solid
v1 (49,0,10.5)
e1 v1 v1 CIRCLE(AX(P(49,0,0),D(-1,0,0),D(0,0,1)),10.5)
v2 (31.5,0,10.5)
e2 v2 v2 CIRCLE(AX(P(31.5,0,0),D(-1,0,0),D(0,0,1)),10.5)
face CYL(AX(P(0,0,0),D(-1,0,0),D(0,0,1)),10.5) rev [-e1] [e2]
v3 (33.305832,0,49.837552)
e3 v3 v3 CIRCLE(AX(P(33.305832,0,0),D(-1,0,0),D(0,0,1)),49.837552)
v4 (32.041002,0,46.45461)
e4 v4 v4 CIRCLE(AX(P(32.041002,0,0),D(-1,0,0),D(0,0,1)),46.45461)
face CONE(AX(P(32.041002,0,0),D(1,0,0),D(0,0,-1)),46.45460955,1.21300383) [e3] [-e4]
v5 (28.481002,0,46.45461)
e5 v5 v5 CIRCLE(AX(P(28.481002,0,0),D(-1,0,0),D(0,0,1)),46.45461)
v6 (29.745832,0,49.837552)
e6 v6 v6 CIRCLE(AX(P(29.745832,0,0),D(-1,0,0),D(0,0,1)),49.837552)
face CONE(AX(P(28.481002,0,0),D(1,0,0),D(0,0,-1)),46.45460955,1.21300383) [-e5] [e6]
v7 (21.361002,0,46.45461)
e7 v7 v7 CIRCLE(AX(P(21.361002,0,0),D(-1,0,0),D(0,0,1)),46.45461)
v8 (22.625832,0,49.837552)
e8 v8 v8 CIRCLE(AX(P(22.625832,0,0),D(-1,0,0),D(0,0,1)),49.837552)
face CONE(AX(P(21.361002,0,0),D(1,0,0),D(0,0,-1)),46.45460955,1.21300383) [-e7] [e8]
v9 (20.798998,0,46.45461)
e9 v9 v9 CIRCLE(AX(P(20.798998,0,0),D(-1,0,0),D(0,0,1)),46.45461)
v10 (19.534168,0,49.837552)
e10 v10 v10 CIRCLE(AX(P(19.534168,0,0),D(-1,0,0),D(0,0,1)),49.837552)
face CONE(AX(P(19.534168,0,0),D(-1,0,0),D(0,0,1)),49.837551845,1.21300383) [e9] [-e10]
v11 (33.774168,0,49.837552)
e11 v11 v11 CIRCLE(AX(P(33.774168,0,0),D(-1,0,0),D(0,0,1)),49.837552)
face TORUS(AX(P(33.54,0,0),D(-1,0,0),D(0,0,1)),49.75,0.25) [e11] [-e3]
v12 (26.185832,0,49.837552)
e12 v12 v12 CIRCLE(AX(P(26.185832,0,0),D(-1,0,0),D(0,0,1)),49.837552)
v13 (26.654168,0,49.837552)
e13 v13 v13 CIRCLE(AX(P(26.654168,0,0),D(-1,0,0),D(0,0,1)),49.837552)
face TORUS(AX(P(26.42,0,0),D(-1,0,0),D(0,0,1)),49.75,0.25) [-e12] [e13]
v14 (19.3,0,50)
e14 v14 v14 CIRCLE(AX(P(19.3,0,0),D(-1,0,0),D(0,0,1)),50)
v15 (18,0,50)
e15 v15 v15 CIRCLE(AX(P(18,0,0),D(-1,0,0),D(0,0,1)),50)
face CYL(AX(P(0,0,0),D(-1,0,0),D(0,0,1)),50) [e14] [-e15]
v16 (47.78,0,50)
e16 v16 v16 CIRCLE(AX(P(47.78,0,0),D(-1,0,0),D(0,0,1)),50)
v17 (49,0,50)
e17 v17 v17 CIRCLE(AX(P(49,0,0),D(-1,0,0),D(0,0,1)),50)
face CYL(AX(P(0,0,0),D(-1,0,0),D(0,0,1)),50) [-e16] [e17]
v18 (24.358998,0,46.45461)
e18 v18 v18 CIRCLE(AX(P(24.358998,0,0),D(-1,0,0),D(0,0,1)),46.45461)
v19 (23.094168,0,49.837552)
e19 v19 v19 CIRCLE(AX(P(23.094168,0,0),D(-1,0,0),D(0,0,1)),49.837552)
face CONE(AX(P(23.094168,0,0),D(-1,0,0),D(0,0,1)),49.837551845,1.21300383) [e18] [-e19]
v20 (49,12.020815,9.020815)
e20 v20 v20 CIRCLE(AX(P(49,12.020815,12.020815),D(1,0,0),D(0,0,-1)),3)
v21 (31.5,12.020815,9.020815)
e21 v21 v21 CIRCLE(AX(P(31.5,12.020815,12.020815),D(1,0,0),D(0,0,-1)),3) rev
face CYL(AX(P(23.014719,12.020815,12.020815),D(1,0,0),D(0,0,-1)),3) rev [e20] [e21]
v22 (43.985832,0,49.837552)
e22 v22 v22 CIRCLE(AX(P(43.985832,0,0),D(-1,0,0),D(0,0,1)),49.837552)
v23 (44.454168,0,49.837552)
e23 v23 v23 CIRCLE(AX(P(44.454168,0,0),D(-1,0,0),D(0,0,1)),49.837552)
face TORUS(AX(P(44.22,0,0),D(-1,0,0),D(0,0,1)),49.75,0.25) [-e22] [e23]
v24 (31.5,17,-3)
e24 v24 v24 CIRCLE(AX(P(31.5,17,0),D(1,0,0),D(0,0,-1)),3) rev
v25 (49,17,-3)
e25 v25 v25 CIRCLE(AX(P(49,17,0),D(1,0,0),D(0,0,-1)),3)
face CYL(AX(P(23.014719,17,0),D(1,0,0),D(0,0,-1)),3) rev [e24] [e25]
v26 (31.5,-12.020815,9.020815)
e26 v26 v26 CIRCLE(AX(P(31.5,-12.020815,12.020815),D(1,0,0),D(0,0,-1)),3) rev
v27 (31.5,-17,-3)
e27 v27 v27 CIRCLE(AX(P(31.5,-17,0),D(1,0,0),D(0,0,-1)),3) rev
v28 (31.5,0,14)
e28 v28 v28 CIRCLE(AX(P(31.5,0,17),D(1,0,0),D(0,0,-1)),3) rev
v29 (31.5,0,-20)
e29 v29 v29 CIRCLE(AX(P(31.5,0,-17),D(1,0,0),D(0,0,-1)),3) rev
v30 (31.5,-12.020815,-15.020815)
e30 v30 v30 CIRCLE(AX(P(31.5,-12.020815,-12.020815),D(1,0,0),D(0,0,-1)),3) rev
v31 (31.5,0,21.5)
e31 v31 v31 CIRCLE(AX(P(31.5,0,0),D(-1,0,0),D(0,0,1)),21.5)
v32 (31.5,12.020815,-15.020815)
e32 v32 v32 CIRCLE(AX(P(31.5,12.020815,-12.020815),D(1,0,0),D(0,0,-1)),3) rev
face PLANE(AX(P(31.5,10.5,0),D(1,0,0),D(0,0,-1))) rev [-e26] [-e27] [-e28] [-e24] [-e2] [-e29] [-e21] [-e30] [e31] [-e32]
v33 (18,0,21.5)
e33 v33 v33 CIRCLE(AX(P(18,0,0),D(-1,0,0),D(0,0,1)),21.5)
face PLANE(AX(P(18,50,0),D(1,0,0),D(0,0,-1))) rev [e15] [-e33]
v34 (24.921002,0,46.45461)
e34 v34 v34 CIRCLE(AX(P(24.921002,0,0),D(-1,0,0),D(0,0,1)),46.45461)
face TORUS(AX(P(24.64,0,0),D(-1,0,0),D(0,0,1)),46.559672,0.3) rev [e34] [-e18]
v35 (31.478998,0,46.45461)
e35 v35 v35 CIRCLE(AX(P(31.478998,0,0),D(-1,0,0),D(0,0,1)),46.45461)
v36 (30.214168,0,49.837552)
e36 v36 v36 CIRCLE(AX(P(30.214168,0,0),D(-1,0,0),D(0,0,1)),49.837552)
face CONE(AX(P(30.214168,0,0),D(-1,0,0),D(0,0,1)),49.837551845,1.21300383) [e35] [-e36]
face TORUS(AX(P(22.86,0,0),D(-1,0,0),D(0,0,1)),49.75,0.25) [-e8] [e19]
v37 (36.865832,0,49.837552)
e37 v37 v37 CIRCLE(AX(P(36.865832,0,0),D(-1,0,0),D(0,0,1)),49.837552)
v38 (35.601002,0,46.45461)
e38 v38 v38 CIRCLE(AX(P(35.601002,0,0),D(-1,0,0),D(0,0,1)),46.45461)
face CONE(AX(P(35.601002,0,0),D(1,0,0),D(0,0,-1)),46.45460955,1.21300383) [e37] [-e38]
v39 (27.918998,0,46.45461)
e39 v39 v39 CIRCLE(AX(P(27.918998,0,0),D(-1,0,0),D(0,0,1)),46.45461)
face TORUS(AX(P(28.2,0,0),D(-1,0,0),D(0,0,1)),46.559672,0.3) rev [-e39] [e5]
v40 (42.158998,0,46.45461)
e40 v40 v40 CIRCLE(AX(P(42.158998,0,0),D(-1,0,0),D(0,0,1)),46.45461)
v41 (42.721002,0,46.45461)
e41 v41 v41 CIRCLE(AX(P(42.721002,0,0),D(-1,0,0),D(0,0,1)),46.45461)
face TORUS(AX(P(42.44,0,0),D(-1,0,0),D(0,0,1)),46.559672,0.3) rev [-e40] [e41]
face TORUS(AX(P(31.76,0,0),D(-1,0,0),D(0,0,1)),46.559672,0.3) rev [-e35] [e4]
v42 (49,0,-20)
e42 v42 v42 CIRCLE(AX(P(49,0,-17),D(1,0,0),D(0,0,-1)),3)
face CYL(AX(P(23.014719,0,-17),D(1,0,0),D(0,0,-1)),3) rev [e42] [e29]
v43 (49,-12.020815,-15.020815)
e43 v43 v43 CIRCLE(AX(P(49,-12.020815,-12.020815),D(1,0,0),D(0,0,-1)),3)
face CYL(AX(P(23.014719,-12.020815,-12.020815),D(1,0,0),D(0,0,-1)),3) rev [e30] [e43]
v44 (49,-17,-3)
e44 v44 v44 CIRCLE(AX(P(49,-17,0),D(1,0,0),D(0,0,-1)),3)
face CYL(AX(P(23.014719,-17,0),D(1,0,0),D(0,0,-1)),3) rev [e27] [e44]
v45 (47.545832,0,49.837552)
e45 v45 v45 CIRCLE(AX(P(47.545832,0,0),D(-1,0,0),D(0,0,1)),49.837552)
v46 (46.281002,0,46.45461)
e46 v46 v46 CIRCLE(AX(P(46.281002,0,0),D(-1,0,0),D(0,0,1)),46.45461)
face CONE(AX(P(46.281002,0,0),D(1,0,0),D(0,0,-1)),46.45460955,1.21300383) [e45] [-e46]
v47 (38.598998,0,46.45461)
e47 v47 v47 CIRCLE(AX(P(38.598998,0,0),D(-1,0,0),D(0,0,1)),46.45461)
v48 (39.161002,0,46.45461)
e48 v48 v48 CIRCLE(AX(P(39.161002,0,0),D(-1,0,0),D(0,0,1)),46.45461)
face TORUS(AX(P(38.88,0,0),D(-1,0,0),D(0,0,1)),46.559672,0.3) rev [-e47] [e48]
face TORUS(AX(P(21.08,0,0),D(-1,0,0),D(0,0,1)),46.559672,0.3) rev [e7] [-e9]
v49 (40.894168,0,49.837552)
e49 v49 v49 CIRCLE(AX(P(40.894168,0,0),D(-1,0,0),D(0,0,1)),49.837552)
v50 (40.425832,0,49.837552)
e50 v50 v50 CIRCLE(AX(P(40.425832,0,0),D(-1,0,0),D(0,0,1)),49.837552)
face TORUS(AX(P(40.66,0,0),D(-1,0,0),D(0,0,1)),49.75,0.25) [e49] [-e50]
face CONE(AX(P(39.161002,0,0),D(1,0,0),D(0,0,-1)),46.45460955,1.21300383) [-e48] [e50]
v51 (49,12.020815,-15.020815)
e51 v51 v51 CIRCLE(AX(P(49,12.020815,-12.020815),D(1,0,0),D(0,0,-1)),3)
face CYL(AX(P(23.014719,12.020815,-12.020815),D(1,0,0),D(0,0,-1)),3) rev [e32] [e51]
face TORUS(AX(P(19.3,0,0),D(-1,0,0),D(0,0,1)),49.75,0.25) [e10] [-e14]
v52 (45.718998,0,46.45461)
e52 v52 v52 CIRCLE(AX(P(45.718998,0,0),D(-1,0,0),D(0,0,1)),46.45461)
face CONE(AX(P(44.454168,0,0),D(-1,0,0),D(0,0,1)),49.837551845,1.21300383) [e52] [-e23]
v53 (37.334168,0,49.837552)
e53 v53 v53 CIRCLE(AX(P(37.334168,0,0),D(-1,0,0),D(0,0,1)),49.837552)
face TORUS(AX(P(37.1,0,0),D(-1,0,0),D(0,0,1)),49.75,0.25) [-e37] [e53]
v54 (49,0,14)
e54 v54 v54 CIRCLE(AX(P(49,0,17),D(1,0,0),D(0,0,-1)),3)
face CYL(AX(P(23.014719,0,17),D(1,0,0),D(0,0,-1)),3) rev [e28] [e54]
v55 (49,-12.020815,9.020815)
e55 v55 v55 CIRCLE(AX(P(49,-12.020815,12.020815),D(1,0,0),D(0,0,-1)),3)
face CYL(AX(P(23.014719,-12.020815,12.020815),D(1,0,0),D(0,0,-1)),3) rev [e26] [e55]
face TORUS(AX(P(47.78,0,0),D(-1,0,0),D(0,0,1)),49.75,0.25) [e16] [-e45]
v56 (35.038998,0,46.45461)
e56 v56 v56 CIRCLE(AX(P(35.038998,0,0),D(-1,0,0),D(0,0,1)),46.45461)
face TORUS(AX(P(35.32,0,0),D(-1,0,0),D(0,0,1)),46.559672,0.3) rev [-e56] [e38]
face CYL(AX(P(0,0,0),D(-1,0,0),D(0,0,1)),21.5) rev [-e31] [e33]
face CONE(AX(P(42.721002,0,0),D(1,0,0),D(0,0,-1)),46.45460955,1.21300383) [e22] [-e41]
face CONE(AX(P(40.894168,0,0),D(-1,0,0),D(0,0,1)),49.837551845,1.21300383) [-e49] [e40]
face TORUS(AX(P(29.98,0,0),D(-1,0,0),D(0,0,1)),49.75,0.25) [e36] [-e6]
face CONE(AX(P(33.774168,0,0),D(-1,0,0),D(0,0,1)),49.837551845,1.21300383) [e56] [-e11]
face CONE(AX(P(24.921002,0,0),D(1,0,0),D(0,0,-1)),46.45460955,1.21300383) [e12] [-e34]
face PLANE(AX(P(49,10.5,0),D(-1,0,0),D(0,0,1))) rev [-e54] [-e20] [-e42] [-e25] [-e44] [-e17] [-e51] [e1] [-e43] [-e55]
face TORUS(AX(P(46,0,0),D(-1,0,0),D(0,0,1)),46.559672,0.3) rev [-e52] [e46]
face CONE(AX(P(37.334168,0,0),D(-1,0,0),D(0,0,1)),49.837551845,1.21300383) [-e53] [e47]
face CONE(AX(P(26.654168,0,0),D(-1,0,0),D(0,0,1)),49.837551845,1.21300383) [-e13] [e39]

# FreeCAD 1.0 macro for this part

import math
import FreeCAD as App
import Part
import Sketcher

V = App.Vector
Q = App.Units.Quantity

doc = App.newDocument("Part")
body = doc.addObject("PartDesign::Body", "Body")

sketch1 = body.newObject("Sketcher::SketchObject", "Sketch")
sketch1.AttachmentSupport = (doc.getObject("XY_Plane"), [""])
sketch1.MapMode = "FlatFace"
sketch1.addGeometry(Part.LineSegment(V(49, 10.5, 0), V(49, 50, 0)), False)
sketch1.addGeometry(Part.LineSegment(V(49, 50, 0), V(18, 50, 0)), False)
sketch1.addGeometry(Part.LineSegment(V(18, 50, 0), V(18, 21.5, 0)), False)
sketch1.addGeometry(Part.LineSegment(V(18, 21.5, 0), V(31.5, 21.5, 0)), False)
sketch1.addGeometry(Part.LineSegment(V(31.5, 21.5, 0), V(31.5, 10.5, 0)), False)
sketch1.addGeometry(Part.LineSegment(V(31.5, 10.5, 0), V(49, 10.5, 0)), False)
sketch1.addConstraint(Sketcher.Constraint("Coincident", 0, 2, 1, 1))
sketch1.addConstraint(Sketcher.Constraint("Coincident", 1, 2, 2, 1))
sketch1.addConstraint(Sketcher.Constraint("Coincident", 2, 2, 3, 1))
sketch1.addConstraint(Sketcher.Constraint("Coincident", 3, 2, 4, 1))
sketch1.addConstraint(Sketcher.Constraint("Coincident", 4, 2, 5, 1))
sketch1.addConstraint(Sketcher.Constraint("Coincident", 5, 2, 0, 1))
sketch1.addConstraint(Sketcher.Constraint("Vertical", 0))
sketch1.addConstraint(Sketcher.Constraint("Horizontal", 1))
sketch1.addConstraint(Sketcher.Constraint("Vertical", 2))
sketch1.addConstraint(Sketcher.Constraint("Horizontal", 3))
sketch1.addConstraint(Sketcher.Constraint("Vertical", 4))
sketch1.addConstraint(Sketcher.Constraint("Horizontal", 5))
sketch1.addConstraint(Sketcher.Constraint("DistanceX", 1, 2, 1, 1, Q("31 mm")))
sketch1.addConstraint(Sketcher.Constraint("DistanceY", 4, 2, 4, 1, Q("11 mm")))
sketch1.addConstraint(Sketcher.Constraint("DistanceX", 3, 1, 3, 2, Q("13.5 mm")))
sketch1.addConstraint(Sketcher.Constraint("DistanceY", 0, 1, 0, 2, Q("39.5 mm")))
sketch1.addConstraint(Sketcher.Constraint("DistanceX", -1, 1, 0, 2, Q("49 mm")))
sketch1.addConstraint(Sketcher.Constraint("DistanceY", -1, 1, 0, 2, Q("50 mm")))
revolution = body.newObject("PartDesign::Revolution", "Revolution")
revolution.Profile = sketch1
revolution.ReferenceAxis = (sketch1, ["H_Axis"])
revolution.Angle = 360

sketch2 = body.newObject("Sketcher::SketchObject", "Sketch001")
sketch2.AttachmentSupport = (doc.getObject("XY_Plane"), [""])
sketch2.MapMode = "FlatFace"
sketch2.addGeometry(Part.LineSegment(V(46.281002, 46.45461, 0), V(47.545832, 49.837552, 0)), False)
sketch2.addGeometry(Part.ArcOfCircle(Part.Circle(V(47.78, 49.75, 0), V(0, 0, 1), 0.25), math.radians(90), math.radians(159.5)), False)
sketch2.addGeometry(Part.LineSegment(V(47.78, 50, 0), V(44.22, 50, 0)), False)
sketch2.addGeometry(Part.ArcOfCircle(Part.Circle(V(44.22, 49.75, 0), V(0, 0, 1), 0.25), math.radians(20.5), math.radians(90)), False)
sketch2.addGeometry(Part.LineSegment(V(44.454168, 49.837552, 0), V(45.718998, 46.45461, 0)), False)
sketch2.addGeometry(Part.ArcOfCircle(Part.Circle(V(46, 46.559672, 0), V(0, 0, 1), 0.3), math.radians(-159.5), math.radians(-20.5)), False)
sketch2.addConstraint(Sketcher.Constraint("Tangent", 0, 2, 1, 2))
sketch2.addConstraint(Sketcher.Constraint("Tangent", 1, 1, 2, 1))
sketch2.addConstraint(Sketcher.Constraint("Tangent", 2, 2, 3, 2))
sketch2.addConstraint(Sketcher.Constraint("Tangent", 3, 1, 4, 1))
sketch2.addConstraint(Sketcher.Constraint("Tangent", 4, 2, 5, 1))
sketch2.addConstraint(Sketcher.Constraint("Tangent", 5, 2, 0, 1))
sketch2.addConstraint(Sketcher.Constraint("Horizontal", 2))
sketch2.addConstraint(Sketcher.Constraint("Equal", 1, 3))
sketch2.addConstraint(Sketcher.Constraint("Horizontal", 0, 2, 3, 1))
sketch2.addConstraint(Sketcher.Constraint("Radius", 5, Q("0.3 mm")))
sketch2.addConstraint(Sketcher.Constraint("Radius", 1, Q("0.25 mm")))
sketch2.addConstraint(Sketcher.Constraint("DistanceX", -1, 1, 5, 3, Q("46 mm")))
sketch2.addConstraint(Sketcher.Constraint("DistanceY", -1, 1, 1, 1, Q("50 mm")))
sketch2.addConstraint(Sketcher.Constraint("Angle", 0, Q("69.5 deg")))
sketch2.addConstraint(Sketcher.Constraint("DistanceX", 2, 2, 2, 1, Q("3.56 mm")))
groove = body.newObject("PartDesign::Groove", "Groove")
groove.Profile = sketch2
groove.ReferenceAxis = (sketch2, ["H_Axis"])
groove.Angle = 360
doc.recompute()

linearpattern = body.newObject("PartDesign::LinearPattern", "LinearPattern")
linearpattern.Originals = [groove]
linearpattern.Direction = (doc.getObject("X_Axis"), [""])
linearpattern.Mode = "offset"
linearpattern.Offset = 3.56
linearpattern.Occurrences = 8
linearpattern.Reversed = True
body.Tip = linearpattern

sketch3 = body.newObject("Sketcher::SketchObject", "Sketch002")
sketch3.AttachmentSupport = (doc.getObject("YZ_Plane"), [""])
sketch3.MapMode = "FlatFace"
sketch3.AttachmentOffset = App.Placement(V(0, 0, 49), App.Rotation())
sketch3.addGeometry(Part.Circle(V(17, 0, 0), V(0, 0, 1), 3), False)
sketch3.addGeometry(Part.Circle(V(12.020815, -12.020815, 0), V(0, 0, 1), 3), False)
sketch3.addGeometry(Part.Circle(V(0, -17, 0), V(0, 0, 1), 3), False)
sketch3.addGeometry(Part.Circle(V(-12.020815, -12.020815, 0), V(0, 0, 1), 3), False)
sketch3.addGeometry(Part.Circle(V(-17, 0, 0), V(0, 0, 1), 3), False)
sketch3.addGeometry(Part.Circle(V(-12.020815, 12.020815, 0), V(0, 0, 1), 3), False)
sketch3.addGeometry(Part.Circle(V(0, 17, 0), V(0, 0, 1), 3), False)
sketch3.addGeometry(Part.Circle(V(12.020815, 12.020815, 0), V(0, 0, 1), 3), False)
sketch3.addConstraint(Sketcher.Constraint("Equal", 0, 1))
sketch3.addConstraint(Sketcher.Constraint("Equal", 1, 2))
sketch3.addConstraint(Sketcher.Constraint("Equal", 2, 3))
sketch3.addConstraint(Sketcher.Constraint("Equal", 3, 4))
sketch3.addConstraint(Sketcher.Constraint("Equal", 4, 5))
sketch3.addConstraint(Sketcher.Constraint("Equal", 5, 6))
sketch3.addConstraint(Sketcher.Constraint("Equal", 6, 7))
sketch3.addConstraint(Sketcher.Constraint("Symmetric", 0, 3, 4, 3, -1, 1))
sketch3.addConstraint(Sketcher.Constraint("Symmetric", 1, 3, 5, 3, -1, 1))
sketch3.addConstraint(Sketcher.Constraint("Symmetric", 2, 3, 6, 3, -1, 1))
sketch3.addConstraint(Sketcher.Constraint("Symmetric", 3, 3, 7, 3, -1, 1))
sketch3.addConstraint(Sketcher.Constraint("Symmetric", 1, 3, 3, 3, -2))
sketch3.addConstraint(Sketcher.Constraint("PointOnObject", 0, 3, -1))
sketch3.addConstraint(Sketcher.Constraint("PointOnObject", 2, 3, -2))
sketch3.addConstraint(Sketcher.Constraint("Diameter", 0, Q("6 mm")))
sketch3.addConstraint(Sketcher.Constraint("DistanceX", -1, 1, 0, 3, Q("17 mm")))
sketch3.addConstraint(Sketcher.Constraint("DistanceY", 2, 3, -1, 1, Q("17 mm")))
sketch3.addConstraint(Sketcher.Constraint("DistanceX", 3, 3, 1, 3, Q("24.041631 mm")))
sketch3.addConstraint(Sketcher.Constraint("DistanceY", 3, 3, 5, 3, Q("24.041631 mm")))
pocket1 = body.newObject("PartDesign::Pocket", "Pocket")
pocket1.Profile = sketch3
pocket1.Length = 17.5

doc.recompute()
